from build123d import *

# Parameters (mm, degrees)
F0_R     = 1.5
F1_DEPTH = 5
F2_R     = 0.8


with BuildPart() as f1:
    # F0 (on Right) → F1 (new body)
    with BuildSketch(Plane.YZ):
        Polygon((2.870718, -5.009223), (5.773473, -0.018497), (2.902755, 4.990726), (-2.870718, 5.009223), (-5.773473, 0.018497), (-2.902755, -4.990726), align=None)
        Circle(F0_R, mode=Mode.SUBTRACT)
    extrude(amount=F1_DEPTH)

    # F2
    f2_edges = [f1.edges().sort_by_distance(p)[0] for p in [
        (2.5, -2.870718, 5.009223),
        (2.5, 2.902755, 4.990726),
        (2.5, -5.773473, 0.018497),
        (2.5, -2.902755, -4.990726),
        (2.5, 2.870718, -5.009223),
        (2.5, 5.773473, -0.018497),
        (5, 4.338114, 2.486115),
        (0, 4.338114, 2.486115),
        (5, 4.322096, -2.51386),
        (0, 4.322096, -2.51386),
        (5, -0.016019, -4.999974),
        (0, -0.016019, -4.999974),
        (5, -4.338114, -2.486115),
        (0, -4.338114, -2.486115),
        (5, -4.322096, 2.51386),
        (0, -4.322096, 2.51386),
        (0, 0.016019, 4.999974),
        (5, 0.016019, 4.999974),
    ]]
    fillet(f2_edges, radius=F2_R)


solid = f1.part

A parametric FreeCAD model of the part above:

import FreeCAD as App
import Part
import Sketcher
from FreeCAD import Vector


def edges_at(feature, points):
    """Names of the edges that pass closest to the given points."""
    edges = feature.Shape.Edges
    near = lambda p: min(range(len(edges)), key=lambda i: edges[i].distToShape(Part.Vertex(*p))[0])
    return sorted({f"Edge{near(p) + 1}" for p in points})


def add_polygon(sketch, points):
    """Adds a closed chain of lines whose ends are joined by coincident constraints."""
    first, n = sketch.GeometryCount, len(points)
    for a, b in zip(points, points[1:] + points[:1]):
        sketch.addGeometry(Part.LineSegment(App.Vector(*a, 0), App.Vector(*b, 0)), False)
    for i in range(n):
        sketch.addConstraint(Sketcher.Constraint("Coincident", first + i, 2, first + (i + 1) % n, 1))

doc = App.newDocument("Part")
body = doc.addObject("PartDesign::Body", "Body")

# Sketch on YZ plane
sketch1 = body.newObject("Sketcher::SketchObject", "Sketch")
sketch1.AttachmentSupport = (doc.getObject("YZ_Plane"), [""])
sketch1.MapMode = "FlatFace"
add_polygon(sketch1, [(2.870718, -5.009223), (5.773473, -0.018497), (2.902755, 4.990726), (-2.870718, 5.009223), (-5.773473, 0.018497), (-2.902755, -4.990726)])  # lines 0-5
sketch1.addGeometry(Part.Circle(Vector(0, 0, 0), Vector(0, 0, 1), 1.5), False)  # 6
sketch1.addConstraint([
    Sketcher.Constraint("Coincident", 6, 3, -1, 1),
    Sketcher.Constraint("Symmetric", 0, 2, 3, 2, -1, 1),
    Sketcher.Constraint("Symmetric", 1, 2, 4, 2, -1, 1),
    Sketcher.Constraint("Symmetric", 2, 2, 5, 2, -1, 1),
    Sketcher.Constraint("Equal", 0, 1),
    Sketcher.Constraint("Equal", 1, 2),
    Sketcher.Constraint("Diameter", 6, 3.0),
    Sketcher.Constraint("DistanceX", 2, 2, -1, 1, 2.870718),
    Sketcher.Constraint("DistanceX", 1, 2, 0, 2, 2.870718),
    Sketcher.Constraint("DistanceX", 2, 2, 0, 2, 8.644191),
    Sketcher.Constraint("DistanceY", 0, 2, 2, 2, 5.02772),
])
pad1 = body.newObject("PartDesign::Pad", "Pad")
pad1.Profile = sketch1
pad1.Length = 5
doc.recompute()

fillet = body.newObject("PartDesign::Fillet", "Fillet")
fillet.Base = (pad1, edges_at(pad1, [
    (2.5, -2.871, 5.009),
    (2.5, 2.903, 4.991),
    (2.5, -5.773, 0.018),
    (2.5, -2.903, -4.991),
    (2.5, 2.871, -5.009),
    (2.5, 5.773, -0.018),
    (5, 4.338, 2.486),
    (0, 4.338, 2.486),
    (5, 4.322, -2.514),
    (0, 4.322, -2.514),
    (5, -0.016, -5),
    (0, -0.016, -5),
    (5, -4.338, -2.486),
    (0, -4.338, -2.486),
    (5, -4.322, 2.514),
    (0, -4.322, 2.514),
    (0, 0.016, 5),
    (5, 0.016, 5),
]))
fillet.Radius = 0.8

doc.recompute()
